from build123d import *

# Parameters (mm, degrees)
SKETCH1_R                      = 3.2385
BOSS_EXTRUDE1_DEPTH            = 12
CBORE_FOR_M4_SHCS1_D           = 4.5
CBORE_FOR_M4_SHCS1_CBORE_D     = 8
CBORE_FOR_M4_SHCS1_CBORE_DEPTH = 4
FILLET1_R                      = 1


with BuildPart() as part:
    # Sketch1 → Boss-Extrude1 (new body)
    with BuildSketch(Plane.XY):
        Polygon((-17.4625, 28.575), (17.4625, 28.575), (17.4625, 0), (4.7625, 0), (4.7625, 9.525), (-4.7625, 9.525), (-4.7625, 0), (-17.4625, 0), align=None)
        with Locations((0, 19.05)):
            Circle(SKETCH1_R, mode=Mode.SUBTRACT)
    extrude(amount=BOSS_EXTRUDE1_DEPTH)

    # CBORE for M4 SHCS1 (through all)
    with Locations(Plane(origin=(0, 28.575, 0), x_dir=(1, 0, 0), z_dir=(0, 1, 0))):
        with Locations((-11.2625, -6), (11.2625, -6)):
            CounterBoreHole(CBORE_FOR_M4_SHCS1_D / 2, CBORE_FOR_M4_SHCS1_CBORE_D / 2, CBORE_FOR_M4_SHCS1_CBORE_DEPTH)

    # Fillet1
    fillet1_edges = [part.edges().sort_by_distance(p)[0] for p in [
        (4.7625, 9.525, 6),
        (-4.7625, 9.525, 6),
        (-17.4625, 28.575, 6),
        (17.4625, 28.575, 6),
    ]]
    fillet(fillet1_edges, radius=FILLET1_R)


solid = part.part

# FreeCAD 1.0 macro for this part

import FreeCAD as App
import Part
import Sketcher
Q = App.Units.Quantity


def edges_at(feature, points):
    """Names of the edges that pass closest to the given points."""
    edges = feature.Shape.Edges
    near = lambda p: min(range(len(edges)), key=lambda i: edges[i].distToShape(Part.Vertex(*p))[0])
    return sorted({f"Edge{near(p) + 1}" for p in points})


def add_polygon(sketch, points):
    """Adds a closed chain of lines whose ends are joined by coincident constraints."""
    first, n = sketch.GeometryCount, len(points)
    for a, b in zip(points, points[1:] + points[:1]):
        sketch.addGeometry(Part.LineSegment(App.Vector(*a, 0), App.Vector(*b, 0)), False)
    for i in range(n):
        sketch.addConstraint(Sketcher.Constraint("Coincident", first + i, 2, first + (i + 1) % n, 1))

doc = App.newDocument("Part")
params = doc.addObject("Spreadsheet::Sheet", "Params")
for row, (alias, value) in enumerate([
    ("sketch1_diameter", "0.255 in"),
    ("sketch1_width", "0.5 in"),
    ("sketch1_width2", "1.375 in"),
    ("sketch1_height", "1.125 in"),
    ("pad1_length", "12 mm"),
    ("hole_diameter", "4.5 mm"),
    ("hole_cbore_diameter", "8 mm"),
    ("hole_cbore_depth", "4 mm"),
    ("fillet_radius", "1 mm"),
], start=1):
    params.set(f"A{row}", alias)
    params.set(f"B{row}", "=" + value)
    params.setAlias(f"B{row}", alias)

body = doc.addObject("PartDesign::Body", "Body")

sketch1 = doc.addObject("Sketcher::SketchObject", "Sketch")
body.addObject(sketch1)
sketch1.AttachmentSupport = (doc.XY_Plane, [""])
sketch1.MapMode = "FlatFace"
add_polygon(sketch1, [(17.4625, 28.575), (-17.4625, 28.575), (-17.4625, 0), (-4.7625, 0), (-4.7625, 9.525), (4.7625, 9.525), (4.7625, 0), (17.4625, 0)])
sketch1.addGeometry(Part.Circle(App.Vector(0, 19.05, 0), App.Vector(0, 0, 1), 3.2385), False)
sketch1.addConstraint([
    Sketcher.Constraint("Horizontal", 0),
    Sketcher.Constraint("Vertical", 1),
    Sketcher.Constraint("Horizontal", 2),
    Sketcher.Constraint("Vertical", 3),
    Sketcher.Constraint("Horizontal", 4),
    Sketcher.Constraint("Vertical", 5),
    Sketcher.Constraint("Horizontal", 6),
    Sketcher.Constraint("Vertical", 7),
    Sketcher.Constraint("Symmetric", 2, 2, 5, 2, -1, 1),
    Sketcher.Constraint("Symmetric", 1, 2, 6, 2, -2),
    Sketcher.Constraint("PointOnObject", 8, 3, -2),
    Sketcher.Constraint("Equal", 4, 3),
    Sketcher.Constraint("Diameter", 8, Q("0.255 in")),
    Sketcher.Constraint("DistanceX", 2, 1, 2, 2, Q("0.5 in")),
    Sketcher.Constraint("DistanceX", 0, 2, 0, 1, Q("1.375 in")),
    Sketcher.Constraint("DistanceY", 1, 2, 1, 1, Q("1.125 in")),
    Sketcher.Constraint("DistanceY", -1, 1, 8, 3, Q("0.75 in")),
])
sketch1.setExpression("Constraints[20]", "Params.sketch1_diameter")
sketch1.setExpression("Constraints[21]", "Params.sketch1_width")
sketch1.setExpression("Constraints[22]", "Params.sketch1_width2")
sketch1.setExpression("Constraints[23]", "Params.sketch1_height")
pad1 = doc.addObject("PartDesign::Pad", "Pad")
body.addObject(pad1)
pad1.Profile = sketch1
pad1.setExpression("Length", "Params.pad1_length")

sketch2 = doc.addObject("Sketcher::SketchObject", "Sketch001")
body.addObject(sketch2)
sketch2.AttachmentSupport = (doc.XZ_Plane, [""])
sketch2.MapMode = "FlatFace"
sketch2.AttachmentOffset = App.Placement(App.Vector(0, 0, -1.125 * 25.4), App.Rotation())
sketch2.addGeometry([
    Part.Circle(App.Vector(-11.2625, 6, 0), App.Vector(0, 0, 1), 2.25),
    Part.Circle(App.Vector(11.2625, 6, 0), App.Vector(0, 0, 1), 2.25),
], False)
sketch2.addConstraint([
    Sketcher.Constraint("Equal", 0, 1),
    Sketcher.Constraint("Symmetric", 0, 3, 1, 3, -2),
    Sketcher.Constraint("Diameter", 0, 4.5),
    Sketcher.Constraint("DistanceX", 0, 3, -1, 1, 11.2625),
    Sketcher.Constraint("DistanceY", -1, 1, 0, 3, 6.0),
])
doc.recompute()
hole = doc.addObject("PartDesign::Hole", "Hole")
body.addObject(hole)
hole.Profile = sketch2
hole.ThreadType = "None"
hole.setExpression("Diameter", "Params.hole_diameter")
hole.DepthType = "ThroughAll"
hole.HoleCutType = "Counterbore"
hole.setExpression("HoleCutDiameter", "Params.hole_cbore_diameter")
hole.setExpression("HoleCutDepth", "Params.hole_cbore_depth")
hole.Reversed = True
doc.recompute()

fillet = doc.addObject("PartDesign::Fillet", "Fillet")
body.addObject(fillet)
fillet.Base = (hole, edges_at(hole, [
    (4.763, 9.525, 6),
    (-4.763, 9.525, 6),
    (-17.462, 28.575, 6),
    (17.462, 28.575, 6),
]))
fillet.setExpression("Radius", "Params.fillet_radius")

doc.recompute()
